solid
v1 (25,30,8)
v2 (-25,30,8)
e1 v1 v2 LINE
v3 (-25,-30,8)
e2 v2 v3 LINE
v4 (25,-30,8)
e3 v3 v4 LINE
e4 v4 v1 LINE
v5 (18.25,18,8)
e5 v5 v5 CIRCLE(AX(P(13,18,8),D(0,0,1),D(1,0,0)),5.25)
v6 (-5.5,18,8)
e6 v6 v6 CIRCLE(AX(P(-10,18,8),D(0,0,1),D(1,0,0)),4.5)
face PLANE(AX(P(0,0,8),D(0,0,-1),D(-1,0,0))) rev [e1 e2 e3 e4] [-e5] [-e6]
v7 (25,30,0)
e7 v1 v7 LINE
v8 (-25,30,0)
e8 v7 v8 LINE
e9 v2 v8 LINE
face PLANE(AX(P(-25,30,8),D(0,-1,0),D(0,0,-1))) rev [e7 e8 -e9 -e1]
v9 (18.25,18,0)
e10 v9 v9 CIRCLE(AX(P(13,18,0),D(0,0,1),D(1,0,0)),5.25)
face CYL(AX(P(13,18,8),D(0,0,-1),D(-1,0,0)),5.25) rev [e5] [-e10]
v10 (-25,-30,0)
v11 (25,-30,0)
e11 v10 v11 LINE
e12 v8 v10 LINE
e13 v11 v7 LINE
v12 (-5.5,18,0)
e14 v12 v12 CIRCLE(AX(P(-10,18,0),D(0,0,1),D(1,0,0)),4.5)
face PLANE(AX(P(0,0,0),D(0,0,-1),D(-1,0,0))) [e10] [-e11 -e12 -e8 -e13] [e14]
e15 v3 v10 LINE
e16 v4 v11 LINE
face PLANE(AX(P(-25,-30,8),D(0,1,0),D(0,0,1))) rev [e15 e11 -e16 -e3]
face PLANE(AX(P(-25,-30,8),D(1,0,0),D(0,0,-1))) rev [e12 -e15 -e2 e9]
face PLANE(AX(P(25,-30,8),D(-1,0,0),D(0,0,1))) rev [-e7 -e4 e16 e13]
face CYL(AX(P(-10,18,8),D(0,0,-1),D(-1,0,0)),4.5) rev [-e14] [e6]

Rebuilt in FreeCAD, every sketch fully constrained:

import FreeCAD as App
import Part
import Sketcher
from FreeCAD import Vector
Q = App.Units.Quantity


def add_polygon(sketch, points):
    """Adds a closed chain of lines whose ends are joined by coincident constraints."""
    first, n = sketch.GeometryCount, len(points)
    for a, b in zip(points, points[1:] + points[:1]):
        sketch.addGeometry(Part.LineSegment(App.Vector(*a, 0), App.Vector(*b, 0)), False)
    for i in range(n):
        sketch.addConstraint(Sketcher.Constraint("Coincident", first + i, 2, first + (i + 1) % n, 1))

doc = App.newDocument("Part")
body = doc.addObject("PartDesign::Body", "Body")

sketch1 = body.newObject("Sketcher::SketchObject", "Sketch")
sketch1.AttachmentSupport = (doc.getObject("XY_Plane"), [""])
sketch1.MapMode = "FlatFace"
add_polygon(sketch1, [(-25, 30), (-25, -30), (25, -30), (25, 30)])
sketch1.addGeometry(Part.Circle(Vector(-10, 18, 0), Vector(0, 0, 1), 4.5), False)
sketch1.addConstraint(Sketcher.Constraint("Vertical", 0))
sketch1.addConstraint(Sketcher.Constraint("Horizontal", 1))
sketch1.addConstraint(Sketcher.Constraint("Vertical", 2))
sketch1.addConstraint(Sketcher.Constraint("Horizontal", 3))
sketch1.addConstraint(Sketcher.Constraint("Symmetric", 0, 2, 2, 2, -1, 1))
sketch1.addConstraint(Sketcher.Constraint("Diameter", 4, Q("9 mm")))
sketch1.addConstraint(Sketcher.Constraint("DistanceX", 1, 1, 1, 2, Q("50 mm")))
sketch1.addConstraint(Sketcher.Constraint("DistanceY", 0, 2, 0, 1, Q("60 mm")))
sketch1.addConstraint(Sketcher.Constraint("DistanceX", 4, 3, -1, 1, Q("10 mm")))
sketch1.addConstraint(Sketcher.Constraint("DistanceY", -1, 1, 4, 3, Q("18 mm")))
pad1 = body.newObject("PartDesign::Pad", "Pad")
pad1.Profile = sketch1
pad1.Length = 8

sketch2 = body.newObject("Sketcher::SketchObject", "Sketch001")
sketch2.AttachmentSupport = (doc.getObject("XY_Plane"), [""])
sketch2.MapMode = "FlatFace"
sketch2.addGeometry(Part.Circle(Vector(13, 18, 0), Vector(0, 0, 1), 5.25), False)
sketch2.addConstraint(Sketcher.Constraint("Diameter", 0, Q("10.5 mm")))
sketch2.addConstraint(Sketcher.Constraint("DistanceX", -1, 1, 0, 3, Q("13 mm")))
sketch2.addConstraint(Sketcher.Constraint("DistanceY", -1, 1, 0, 3, Q("18 mm")))
pocket1 = body.newObject("PartDesign::Pocket", "Pocket")
pocket1.Profile = sketch2
pocket1.Type = "ThroughAll"
pocket1.Reversed = True

doc.recompute()
